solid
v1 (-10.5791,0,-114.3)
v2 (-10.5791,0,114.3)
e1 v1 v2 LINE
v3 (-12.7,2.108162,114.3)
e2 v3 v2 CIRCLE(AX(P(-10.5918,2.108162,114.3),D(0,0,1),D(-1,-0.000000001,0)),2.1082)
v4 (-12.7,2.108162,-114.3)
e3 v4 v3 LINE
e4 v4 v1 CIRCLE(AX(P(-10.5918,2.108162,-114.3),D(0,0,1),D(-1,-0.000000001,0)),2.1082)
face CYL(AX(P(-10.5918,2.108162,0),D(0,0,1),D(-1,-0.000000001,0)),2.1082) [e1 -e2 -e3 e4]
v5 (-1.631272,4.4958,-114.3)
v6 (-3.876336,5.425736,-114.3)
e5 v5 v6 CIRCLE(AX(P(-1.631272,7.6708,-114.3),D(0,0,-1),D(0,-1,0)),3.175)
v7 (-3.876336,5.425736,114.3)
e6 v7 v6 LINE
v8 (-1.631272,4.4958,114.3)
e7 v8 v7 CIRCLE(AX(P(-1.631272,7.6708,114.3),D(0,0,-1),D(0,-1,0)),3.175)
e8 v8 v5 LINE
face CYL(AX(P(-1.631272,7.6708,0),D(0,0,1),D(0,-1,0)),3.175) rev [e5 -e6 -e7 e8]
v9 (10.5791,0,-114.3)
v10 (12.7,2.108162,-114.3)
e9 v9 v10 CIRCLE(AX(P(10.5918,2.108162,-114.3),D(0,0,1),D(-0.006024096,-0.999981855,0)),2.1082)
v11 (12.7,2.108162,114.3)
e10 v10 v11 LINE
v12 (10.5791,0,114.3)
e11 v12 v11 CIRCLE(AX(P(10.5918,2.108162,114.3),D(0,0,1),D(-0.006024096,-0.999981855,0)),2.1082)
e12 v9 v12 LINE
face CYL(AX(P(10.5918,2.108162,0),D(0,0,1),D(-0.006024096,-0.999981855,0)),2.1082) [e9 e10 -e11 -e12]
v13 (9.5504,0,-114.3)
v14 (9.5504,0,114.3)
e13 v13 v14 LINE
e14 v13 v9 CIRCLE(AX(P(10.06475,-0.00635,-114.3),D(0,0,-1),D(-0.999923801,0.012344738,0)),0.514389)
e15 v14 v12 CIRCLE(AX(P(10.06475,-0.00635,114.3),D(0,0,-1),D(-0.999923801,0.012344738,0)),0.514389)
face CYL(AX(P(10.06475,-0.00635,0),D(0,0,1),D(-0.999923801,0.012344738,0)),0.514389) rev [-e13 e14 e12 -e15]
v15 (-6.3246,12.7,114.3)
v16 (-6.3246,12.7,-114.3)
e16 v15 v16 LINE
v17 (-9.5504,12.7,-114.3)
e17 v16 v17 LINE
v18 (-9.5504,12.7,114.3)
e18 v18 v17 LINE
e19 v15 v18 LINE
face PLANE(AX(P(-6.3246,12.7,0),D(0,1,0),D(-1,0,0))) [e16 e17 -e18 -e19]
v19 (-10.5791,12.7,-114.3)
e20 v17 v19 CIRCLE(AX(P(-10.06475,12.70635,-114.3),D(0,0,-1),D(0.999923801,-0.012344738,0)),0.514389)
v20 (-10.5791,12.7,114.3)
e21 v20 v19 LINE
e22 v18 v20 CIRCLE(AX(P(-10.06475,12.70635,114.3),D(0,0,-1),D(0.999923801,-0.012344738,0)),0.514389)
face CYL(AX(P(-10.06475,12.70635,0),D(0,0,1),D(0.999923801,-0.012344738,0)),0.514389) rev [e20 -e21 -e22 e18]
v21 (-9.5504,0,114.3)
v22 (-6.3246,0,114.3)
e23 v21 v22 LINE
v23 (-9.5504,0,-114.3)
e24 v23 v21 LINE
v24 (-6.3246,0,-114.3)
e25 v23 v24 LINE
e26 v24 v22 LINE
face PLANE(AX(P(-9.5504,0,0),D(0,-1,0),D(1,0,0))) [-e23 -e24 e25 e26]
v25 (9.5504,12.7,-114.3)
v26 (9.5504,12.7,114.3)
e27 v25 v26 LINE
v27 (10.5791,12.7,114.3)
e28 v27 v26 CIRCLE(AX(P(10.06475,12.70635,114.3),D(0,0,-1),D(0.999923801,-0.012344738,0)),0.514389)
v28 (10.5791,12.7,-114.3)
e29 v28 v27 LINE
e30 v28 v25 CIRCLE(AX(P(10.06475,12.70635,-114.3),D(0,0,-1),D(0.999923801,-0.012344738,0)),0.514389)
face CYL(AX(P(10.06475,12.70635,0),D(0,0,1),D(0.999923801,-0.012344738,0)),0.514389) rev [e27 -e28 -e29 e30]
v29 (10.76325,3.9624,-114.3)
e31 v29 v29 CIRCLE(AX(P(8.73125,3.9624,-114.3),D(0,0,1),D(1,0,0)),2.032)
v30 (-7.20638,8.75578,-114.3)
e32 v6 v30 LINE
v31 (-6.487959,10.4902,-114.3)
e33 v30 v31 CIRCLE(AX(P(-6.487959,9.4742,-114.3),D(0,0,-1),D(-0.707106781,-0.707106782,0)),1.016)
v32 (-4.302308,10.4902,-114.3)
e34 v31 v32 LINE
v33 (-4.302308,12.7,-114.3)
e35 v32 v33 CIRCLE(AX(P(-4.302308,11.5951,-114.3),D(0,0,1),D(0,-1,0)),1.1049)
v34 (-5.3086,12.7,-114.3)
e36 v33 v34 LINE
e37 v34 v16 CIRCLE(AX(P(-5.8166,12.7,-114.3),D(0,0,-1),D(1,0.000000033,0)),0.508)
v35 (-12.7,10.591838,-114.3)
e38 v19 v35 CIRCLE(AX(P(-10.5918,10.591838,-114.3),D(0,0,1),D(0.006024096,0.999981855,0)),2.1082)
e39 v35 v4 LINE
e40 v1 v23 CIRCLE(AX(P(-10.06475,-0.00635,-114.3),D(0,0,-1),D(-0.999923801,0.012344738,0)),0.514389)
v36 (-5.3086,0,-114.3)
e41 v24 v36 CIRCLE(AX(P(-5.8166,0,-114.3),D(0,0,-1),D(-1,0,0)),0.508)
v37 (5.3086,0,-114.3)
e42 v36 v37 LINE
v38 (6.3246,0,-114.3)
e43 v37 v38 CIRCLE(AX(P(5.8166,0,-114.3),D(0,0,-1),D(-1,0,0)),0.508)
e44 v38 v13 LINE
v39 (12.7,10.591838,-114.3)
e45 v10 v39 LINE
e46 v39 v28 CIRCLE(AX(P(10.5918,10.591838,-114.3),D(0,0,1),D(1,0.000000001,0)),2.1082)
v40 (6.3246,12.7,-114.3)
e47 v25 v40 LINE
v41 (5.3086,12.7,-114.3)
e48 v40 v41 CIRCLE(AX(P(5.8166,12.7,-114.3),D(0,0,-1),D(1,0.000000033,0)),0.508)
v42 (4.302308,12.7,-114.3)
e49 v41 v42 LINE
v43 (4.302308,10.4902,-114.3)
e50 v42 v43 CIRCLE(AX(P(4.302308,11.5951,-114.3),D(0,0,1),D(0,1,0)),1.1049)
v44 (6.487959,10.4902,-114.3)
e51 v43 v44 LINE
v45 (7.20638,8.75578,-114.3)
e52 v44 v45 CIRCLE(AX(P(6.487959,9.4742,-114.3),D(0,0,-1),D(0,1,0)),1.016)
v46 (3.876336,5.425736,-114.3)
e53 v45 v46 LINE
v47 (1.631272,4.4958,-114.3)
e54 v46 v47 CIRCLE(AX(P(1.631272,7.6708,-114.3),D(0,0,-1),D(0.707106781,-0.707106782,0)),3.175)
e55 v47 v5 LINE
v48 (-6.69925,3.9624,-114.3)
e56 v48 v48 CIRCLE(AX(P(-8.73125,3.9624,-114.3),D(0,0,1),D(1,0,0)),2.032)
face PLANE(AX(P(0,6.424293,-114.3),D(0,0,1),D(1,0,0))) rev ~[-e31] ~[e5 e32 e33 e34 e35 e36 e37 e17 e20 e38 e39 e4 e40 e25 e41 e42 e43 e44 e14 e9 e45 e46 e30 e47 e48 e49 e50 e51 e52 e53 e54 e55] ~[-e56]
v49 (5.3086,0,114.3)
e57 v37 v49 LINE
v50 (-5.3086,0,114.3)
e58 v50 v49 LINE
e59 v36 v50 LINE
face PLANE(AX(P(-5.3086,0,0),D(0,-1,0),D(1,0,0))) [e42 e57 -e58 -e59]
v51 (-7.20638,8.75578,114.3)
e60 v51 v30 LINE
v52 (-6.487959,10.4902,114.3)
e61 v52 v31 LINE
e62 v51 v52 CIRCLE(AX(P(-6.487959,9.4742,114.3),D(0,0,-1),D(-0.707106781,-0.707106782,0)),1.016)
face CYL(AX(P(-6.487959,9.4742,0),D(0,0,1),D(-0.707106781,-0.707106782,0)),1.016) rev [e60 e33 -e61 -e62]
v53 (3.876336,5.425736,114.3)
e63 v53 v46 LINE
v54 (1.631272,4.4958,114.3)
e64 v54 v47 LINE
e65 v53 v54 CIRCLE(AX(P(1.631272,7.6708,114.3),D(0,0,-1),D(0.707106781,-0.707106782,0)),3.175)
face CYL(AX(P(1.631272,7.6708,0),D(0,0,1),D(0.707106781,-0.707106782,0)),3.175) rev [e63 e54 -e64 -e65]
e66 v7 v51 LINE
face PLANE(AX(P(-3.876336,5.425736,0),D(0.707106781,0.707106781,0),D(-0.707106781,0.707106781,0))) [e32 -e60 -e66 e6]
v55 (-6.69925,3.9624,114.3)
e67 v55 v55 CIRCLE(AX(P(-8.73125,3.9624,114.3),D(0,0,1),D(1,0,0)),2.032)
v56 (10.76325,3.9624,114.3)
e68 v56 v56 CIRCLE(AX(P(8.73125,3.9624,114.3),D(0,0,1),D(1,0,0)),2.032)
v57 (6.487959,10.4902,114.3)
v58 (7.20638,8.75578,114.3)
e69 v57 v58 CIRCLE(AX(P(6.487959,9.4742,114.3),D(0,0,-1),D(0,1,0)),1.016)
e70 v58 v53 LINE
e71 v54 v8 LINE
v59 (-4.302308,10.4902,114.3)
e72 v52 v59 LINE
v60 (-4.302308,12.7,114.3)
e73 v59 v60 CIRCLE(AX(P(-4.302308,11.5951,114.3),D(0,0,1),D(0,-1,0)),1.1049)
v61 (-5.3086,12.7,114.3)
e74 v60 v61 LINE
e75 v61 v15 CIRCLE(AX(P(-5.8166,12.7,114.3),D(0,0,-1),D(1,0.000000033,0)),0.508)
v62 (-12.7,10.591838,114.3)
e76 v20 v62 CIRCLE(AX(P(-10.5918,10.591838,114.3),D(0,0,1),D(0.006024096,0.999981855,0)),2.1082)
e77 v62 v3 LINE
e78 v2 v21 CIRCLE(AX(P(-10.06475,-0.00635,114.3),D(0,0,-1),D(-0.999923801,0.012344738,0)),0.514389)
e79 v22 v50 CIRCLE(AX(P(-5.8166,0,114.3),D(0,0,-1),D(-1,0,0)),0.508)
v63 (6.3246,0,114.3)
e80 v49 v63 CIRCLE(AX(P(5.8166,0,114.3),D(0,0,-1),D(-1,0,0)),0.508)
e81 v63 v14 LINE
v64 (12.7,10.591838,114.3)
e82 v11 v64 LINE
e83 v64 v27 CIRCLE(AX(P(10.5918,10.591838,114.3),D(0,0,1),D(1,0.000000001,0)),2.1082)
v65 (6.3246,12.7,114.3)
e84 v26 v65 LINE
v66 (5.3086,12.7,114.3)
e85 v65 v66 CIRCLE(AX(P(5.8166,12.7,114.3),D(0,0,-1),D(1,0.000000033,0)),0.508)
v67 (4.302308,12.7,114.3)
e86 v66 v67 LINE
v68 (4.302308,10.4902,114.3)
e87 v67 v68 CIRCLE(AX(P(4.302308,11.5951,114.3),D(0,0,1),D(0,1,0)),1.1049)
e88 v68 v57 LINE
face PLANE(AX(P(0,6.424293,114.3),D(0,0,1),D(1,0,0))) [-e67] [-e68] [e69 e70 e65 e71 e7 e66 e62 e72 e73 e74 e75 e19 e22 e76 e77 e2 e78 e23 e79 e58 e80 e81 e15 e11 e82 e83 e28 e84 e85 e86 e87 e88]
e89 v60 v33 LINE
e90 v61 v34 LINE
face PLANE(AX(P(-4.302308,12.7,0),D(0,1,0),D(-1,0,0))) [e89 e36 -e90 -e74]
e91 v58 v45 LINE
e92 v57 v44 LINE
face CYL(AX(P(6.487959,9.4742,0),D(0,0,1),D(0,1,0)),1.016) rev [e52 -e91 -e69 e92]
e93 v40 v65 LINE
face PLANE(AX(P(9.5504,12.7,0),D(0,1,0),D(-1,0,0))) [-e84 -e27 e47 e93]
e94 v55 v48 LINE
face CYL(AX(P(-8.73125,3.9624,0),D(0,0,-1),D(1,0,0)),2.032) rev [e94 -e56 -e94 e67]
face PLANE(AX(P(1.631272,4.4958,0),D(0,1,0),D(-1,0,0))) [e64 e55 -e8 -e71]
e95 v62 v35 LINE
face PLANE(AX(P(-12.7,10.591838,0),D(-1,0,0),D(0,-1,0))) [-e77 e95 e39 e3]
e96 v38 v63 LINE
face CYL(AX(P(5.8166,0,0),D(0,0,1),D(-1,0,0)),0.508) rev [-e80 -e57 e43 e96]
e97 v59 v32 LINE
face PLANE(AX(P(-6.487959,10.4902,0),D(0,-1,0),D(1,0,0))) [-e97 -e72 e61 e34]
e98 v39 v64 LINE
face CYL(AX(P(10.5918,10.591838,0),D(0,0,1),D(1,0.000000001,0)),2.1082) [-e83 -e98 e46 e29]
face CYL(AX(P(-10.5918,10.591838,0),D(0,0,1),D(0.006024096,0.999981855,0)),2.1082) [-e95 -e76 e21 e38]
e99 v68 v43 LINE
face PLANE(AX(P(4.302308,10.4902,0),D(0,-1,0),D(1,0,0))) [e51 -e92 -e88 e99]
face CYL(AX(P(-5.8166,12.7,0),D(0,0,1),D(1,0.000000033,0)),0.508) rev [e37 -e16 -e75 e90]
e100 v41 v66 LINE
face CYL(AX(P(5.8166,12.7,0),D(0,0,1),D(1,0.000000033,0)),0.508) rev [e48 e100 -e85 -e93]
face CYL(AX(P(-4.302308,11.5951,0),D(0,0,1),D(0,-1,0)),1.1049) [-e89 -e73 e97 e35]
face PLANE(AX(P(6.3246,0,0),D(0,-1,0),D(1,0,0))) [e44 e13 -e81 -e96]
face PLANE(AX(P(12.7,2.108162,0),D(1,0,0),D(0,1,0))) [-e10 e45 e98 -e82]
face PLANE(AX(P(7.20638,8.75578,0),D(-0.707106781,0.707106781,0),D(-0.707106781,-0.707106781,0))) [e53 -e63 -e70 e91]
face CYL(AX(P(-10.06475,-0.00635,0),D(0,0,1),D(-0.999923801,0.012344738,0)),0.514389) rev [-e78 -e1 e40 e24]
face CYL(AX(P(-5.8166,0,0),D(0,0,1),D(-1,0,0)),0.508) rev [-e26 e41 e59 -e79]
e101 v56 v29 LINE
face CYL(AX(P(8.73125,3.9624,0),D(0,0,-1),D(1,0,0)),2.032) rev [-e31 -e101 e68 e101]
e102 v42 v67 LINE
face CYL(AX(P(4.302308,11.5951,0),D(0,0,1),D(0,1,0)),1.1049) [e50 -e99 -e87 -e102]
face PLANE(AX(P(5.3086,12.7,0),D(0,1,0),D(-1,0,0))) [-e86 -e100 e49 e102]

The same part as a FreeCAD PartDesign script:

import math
import FreeCAD as App
import Part
import Sketcher

V = App.Vector
Q = App.Units.Quantity

doc = App.newDocument("Part")
params = doc.addObject("Spreadsheet::Sheet", "Params")
for row, (alias, value) in enumerate([
    ("sketch1_diameter", "0.16 in"),
    ("sketch1_radius", "0.02 in"),
    ("sketch1_radius2", "0.04 in"),
    ("sketch1_radius3", "0.083 in"),
    ("sketch1_radius4", "0.125 in"),
    ("pad1_length", "9 in"),
], start=1):
    params.set(f"A{row}", alias)
    params.set(f"B{row}", "=" + value)
    params.setAlias(f"B{row}", alias)

body = doc.addObject("PartDesign::Body", "Body")

# Sketch on XY plane
sketch1 = doc.addObject("Sketcher::SketchObject", "Sketch")
body.addObject(sketch1)
sketch1.AttachmentSupport = (doc.XY_Plane, [""])
sketch1.MapMode = "FlatFace"
sketch1.addGeometry(Part.LineSegment(V(-12.7, 10.6, 0), V(-12.7, 2.1, 0)), False)
sketch1.addGeometry(Part.ArcOfCircle(Part.Circle(V(-10.6, 2.1, 0), V(0, 0, 1), 2.1), math.radians(-180), math.radians(-90)), False)
sketch1.addGeometry(Part.ArcOfCircle(Part.Circle(V(-10.1, 0, 0), V(0, 0, 1), 0.5), math.radians(1), math.radians(179)), False)
sketch1.addGeometry(Part.LineSegment(V(-9.6, 0, 0), V(-6.3, 0, 0)), False)
sketch1.addGeometry(Part.ArcOfCircle(Part.Circle(V(-5.8, 0, 0), V(0, 0, 1), 0.5), math.radians(0), math.radians(180)), False)
sketch1.addGeometry(Part.LineSegment(V(-5.3, 0, 0), V(5.3, 0, 0)), False)
sketch1.addGeometry(Part.ArcOfCircle(Part.Circle(V(5.8, 0, 0), V(0, 0, 1), 0.5), math.radians(0), math.radians(180)), False)
sketch1.addGeometry(Part.LineSegment(V(6.3, 0, 0), V(9.6, 0, 0)), False)
sketch1.addGeometry(Part.ArcOfCircle(Part.Circle(V(10.1, 0, 0), V(0, 0, 1), 0.5), math.radians(1), math.radians(179)), False)
sketch1.addGeometry(Part.ArcOfCircle(Part.Circle(V(10.6, 2.1, 0), V(0, 0, 1), 2.1), math.radians(-90), math.radians(0)), False)
sketch1.addGeometry(Part.LineSegment(V(12.7, 2.1, 0), V(12.7, 10.6, 0)), False)
sketch1.addGeometry(Part.ArcOfCircle(Part.Circle(V(10.6, 10.6, 0), V(0, 0, 1), 2.1), math.radians(0), math.radians(90)), False)
sketch1.addGeometry(Part.ArcOfCircle(Part.Circle(V(10.1, 12.7, 0), V(0, 0, 1), 0.5), math.radians(-179), math.radians(-1)), False)
sketch1.addGeometry(Part.LineSegment(V(9.6, 12.7, 0), V(6.3, 12.7, 0)), False)
sketch1.addGeometry(Part.ArcOfCircle(Part.Circle(V(5.8, 12.7, 0), V(0, 0, 1), 0.5), math.radians(180), math.radians(360)), False)
sketch1.addGeometry(Part.LineSegment(V(5.3, 12.7, 0), V(4.3, 12.7, 0)), False)
sketch1.addGeometry(Part.ArcOfCircle(Part.Circle(V(4.3, 11.6, 0), V(0, 0, 1), 1.1), math.radians(90), math.radians(270)), False)
sketch1.addGeometry(Part.LineSegment(V(4.3, 10.5, 0), V(6.5, 10.5, 0)), False)
sketch1.addGeometry(Part.ArcOfCircle(Part.Circle(V(6.5, 9.5, 0), V(0, 0, 1), 1), math.radians(-45), math.radians(90)), False)
sketch1.addGeometry(Part.LineSegment(V(7.2, 8.8, 0), V(3.9, 5.4, 0)), False)
sketch1.addGeometry(Part.ArcOfCircle(Part.Circle(V(1.6, 7.7, 0), V(0, 0, 1), 3.2), math.radians(-90), math.radians(-45)), False)
sketch1.addGeometry(Part.LineSegment(V(1.6, 4.5, 0), V(-1.6, 4.5, 0)), False)
sketch1.addGeometry(Part.ArcOfCircle(Part.Circle(V(-1.6, 7.7, 0), V(0, 0, 1), 3.2), math.radians(-135), math.radians(-90)), False)
sketch1.addGeometry(Part.LineSegment(V(-3.9, 5.4, 0), V(-7.2, 8.8, 0)), False)
sketch1.addGeometry(Part.ArcOfCircle(Part.Circle(V(-6.5, 9.5, 0), V(0, 0, 1), 1), math.radians(90), math.radians(225)), False)
sketch1.addGeometry(Part.LineSegment(V(-6.5, 10.5, 0), V(-4.3, 10.5, 0)), False)
sketch1.addGeometry(Part.ArcOfCircle(Part.Circle(V(-4.3, 11.6, 0), V(0, 0, 1), 1.1), math.radians(-90), math.radians(90)), False)
sketch1.addGeometry(Part.LineSegment(V(-4.3, 12.7, 0), V(-5.3, 12.7, 0)), False)
sketch1.addGeometry(Part.ArcOfCircle(Part.Circle(V(-5.8, 12.7, 0), V(0, 0, 1), 0.5), math.radians(180), math.radians(360)), False)
sketch1.addGeometry(Part.LineSegment(V(-6.3, 12.7, 0), V(-9.6, 12.7, 0)), False)
sketch1.addGeometry(Part.ArcOfCircle(Part.Circle(V(-10.1, 12.7, 0), V(0, 0, 1), 0.5), math.radians(-179), math.radians(-1)), False)
sketch1.addGeometry(Part.ArcOfCircle(Part.Circle(V(-10.6, 10.6, 0), V(0, 0, 1), 2.1), math.radians(90), math.radians(180)), False)
sketch1.addGeometry(Part.Circle(V(-8.7, 4, 0), V(0, 0, 1), 2), False)
sketch1.addGeometry(Part.Circle(V(8.7, 4, 0), V(0, 0, 1), 2), False)
sketch1.addConstraint(Sketcher.Constraint("Tangent", 0, 2, 1, 1))
sketch1.addConstraint(Sketcher.Constraint("Coincident", 1, 2, 2, 2))
sketch1.addConstraint(Sketcher.Constraint("Coincident", 2, 1, 3, 1))
sketch1.addConstraint(Sketcher.Constraint("Coincident", 3, 2, 4, 2))
sketch1.addConstraint(Sketcher.Constraint("Coincident", 4, 1, 5, 1))
sketch1.addConstraint(Sketcher.Constraint("Coincident", 5, 2, 6, 2))
sketch1.addConstraint(Sketcher.Constraint("Coincident", 6, 1, 7, 1))
sketch1.addConstraint(Sketcher.Constraint("Coincident", 7, 2, 8, 2))
sketch1.addConstraint(Sketcher.Constraint("Coincident", 8, 1, 9, 1))
sketch1.addConstraint(Sketcher.Constraint("Tangent", 9, 2, 10, 1))
sketch1.addConstraint(Sketcher.Constraint("Tangent", 10, 2, 11, 1))
sketch1.addConstraint(Sketcher.Constraint("Coincident", 11, 2, 12, 2))
sketch1.addConstraint(Sketcher.Constraint("Coincident", 12, 1, 13, 1))
sketch1.addConstraint(Sketcher.Constraint("Coincident", 13, 2, 14, 2))
sketch1.addConstraint(Sketcher.Constraint("Coincident", 14, 1, 15, 1))
sketch1.addConstraint(Sketcher.Constraint("Tangent", 15, 2, 16, 1))
sketch1.addConstraint(Sketcher.Constraint("Tangent", 16, 2, 17, 1))
sketch1.addConstraint(Sketcher.Constraint("Tangent", 17, 2, 18, 2))
sketch1.addConstraint(Sketcher.Constraint("Tangent", 18, 1, 19, 1))
sketch1.addConstraint(Sketcher.Constraint("Tangent", 19, 2, 20, 2))
sketch1.addConstraint(Sketcher.Constraint("Tangent", 20, 1, 21, 1))
sketch1.addConstraint(Sketcher.Constraint("Tangent", 21, 2, 22, 2))
sketch1.addConstraint(Sketcher.Constraint("Tangent", 22, 1, 23, 1))
sketch1.addConstraint(Sketcher.Constraint("Tangent", 23, 2, 24, 2))
sketch1.addConstraint(Sketcher.Constraint("Tangent", 24, 1, 25, 1))
sketch1.addConstraint(Sketcher.Constraint("Tangent", 25, 2, 26, 1))
sketch1.addConstraint(Sketcher.Constraint("Tangent", 26, 2, 27, 1))
sketch1.addConstraint(Sketcher.Constraint("Coincident", 27, 2, 28, 2))
sketch1.addConstraint(Sketcher.Constraint("Coincident", 28, 1, 29, 1))
sketch1.addConstraint(Sketcher.Constraint("Coincident", 29, 2, 30, 2))
sketch1.addConstraint(Sketcher.Constraint("Coincident", 30, 1, 31, 1))
sketch1.addConstraint(Sketcher.Constraint("Tangent", 31, 2, 0, 1))
sketch1.addConstraint(Sketcher.Constraint("Vertical", 0))
sketch1.addConstraint(Sketcher.Constraint("Horizontal", 3))
sketch1.addConstraint(Sketcher.Constraint("Horizontal", 5))
sketch1.addConstraint(Sketcher.Constraint("Horizontal", 7))
sketch1.addConstraint(Sketcher.Constraint("Vertical", 10))
sketch1.addConstraint(Sketcher.Constraint("Horizontal", 13))
sketch1.addConstraint(Sketcher.Constraint("Horizontal", 15))
sketch1.addConstraint(Sketcher.Constraint("Horizontal", 17))
sketch1.addConstraint(Sketcher.Constraint("Horizontal", 21))
sketch1.addConstraint(Sketcher.Constraint("Horizontal", 25))
sketch1.addConstraint(Sketcher.Constraint("Horizontal", 27))
sketch1.addConstraint(Sketcher.Constraint("Horizontal", 29))
sketch1.addConstraint(Sketcher.Constraint("Equal", 4, 6))
sketch1.addConstraint(Sketcher.Constraint("Equal", 2, 8))
sketch1.addConstraint(Sketcher.Constraint("Equal", 1, 9))
sketch1.addConstraint(Sketcher.Constraint("Equal", 9, 11))
sketch1.addConstraint(Sketcher.Constraint("Equal", 8, 12))
sketch1.addConstraint(Sketcher.Constraint("Equal", 6, 14))
sketch1.addConstraint(Sketcher.Constraint("Equal", 20, 22))
sketch1.addConstraint(Sketcher.Constraint("Equal", 18, 24))
sketch1.addConstraint(Sketcher.Constraint("Equal", 16, 26))
sketch1.addConstraint(Sketcher.Constraint("Equal", 14, 28))
sketch1.addConstraint(Sketcher.Constraint("Equal", 12, 30))
sketch1.addConstraint(Sketcher.Constraint("Equal", 11, 31))
sketch1.addConstraint(Sketcher.Constraint("Equal", 32, 33))
sketch1.addConstraint(Sketcher.Constraint("Symmetric", 4, 3, 6, 3, -1, 1))
sketch1.addConstraint(Sketcher.Constraint("Symmetric", 2, 1, 7, 2, -1, 1))
sketch1.addConstraint(Sketcher.Constraint("Symmetric", 1, 2, 8, 1, -1, 1))
sketch1.addConstraint(Sketcher.Constraint("Symmetric", 2, 3, 8, 3, -2))
sketch1.addConstraint(Sketcher.Constraint("Symmetric", 18, 3, 24, 3, -2))
sketch1.addConstraint(Sketcher.Constraint("Symmetric", 14, 3, 28, 3, -2))
sketch1.addConstraint(Sketcher.Constraint("Symmetric", 12, 3, 30, 3, -2))
sketch1.addConstraint(Sketcher.Constraint("Symmetric", 11, 3, 31, 3, -2))
sketch1.addConstraint(Sketcher.Constraint("Symmetric", 32, 3, 33, 3, -2))
sketch1.addConstraint(Sketcher.Constraint("PointOnObject", 4, 3, -1))
sketch1.addConstraint(Sketcher.Constraint("PointOnObject", 4, 1, -1))
sketch1.addConstraint(Sketcher.Constraint("Perpendicular", 19, 23))
sketch1.addConstraint(Sketcher.Constraint("Horizontal", 28, 3, 11, 2))
sketch1.addConstraint(Sketcher.Constraint("Horizontal", 11, 2, 12, 1))
sketch1.addConstraint(Sketcher.Constraint("Horizontal", 13, 2, 14, 1))
sketch1.addConstraint(Sketcher.Constraint("Horizontal", 19, 2, 22, 1))
sketch1.addConstraint(Sketcher.Constraint("Horizontal", 27, 2, 28, 1))
sketch1.addConstraint(Sketcher.Constraint("Vertical", 8, 3, 12, 3))
sketch1.addConstraint(Sketcher.Constraint("Vertical", 6, 3, 14, 3))
sketch1.addConstraint(Sketcher.Constraint("Vertical", 7, 2, 12, 1))
sketch1.addConstraint(Sketcher.Constraint("Equal", 17, 25))
sketch1.addConstraint(Sketcher.Constraint("Diameter", 32, Q("0.16 in")))
sketch1.addConstraint(Sketcher.Constraint("Radius", 4, Q("0.02 in")))
sketch1.addConstraint(Sketcher.Constraint("Radius", 18, Q("0.04 in")))
sketch1.addConstraint(Sketcher.Constraint("Radius", 1, Q("0.083 in")))
sketch1.addConstraint(Sketcher.Constraint("Radius", 20, Q("0.125 in")))
sketch1.addConstraint(Sketcher.Constraint("DistanceY", -1, 1, 14, 3, Q("0.5 in")))
sketch1.addConstraint(Sketcher.Constraint("DistanceX", 0, 2, -1, 1, Q("0.5 in")))
sketch1.addConstraint(Sketcher.Constraint("Radius", 16, Q("0.0435 in")))
sketch1.addConstraint(Sketcher.Constraint("DistanceX", 3, 1, 3, 2, Q("0.127 in")))
sketch1.addConstraint(Sketcher.Constraint("DistanceX", 5, 1, 5, 2, Q("0.418 in")))
sketch1.addConstraint(Sketcher.Constraint("DistanceY", -1, 1, 20, 3, Q("0.302 in")))
sketch1.addConstraint(Sketcher.Constraint("DistanceX", 32, 3, -1, 1, Q("0.34375 in")))
sketch1.addConstraint(Sketcher.Constraint("DistanceY", -1, 1, 32, 3, Q("0.156 in")))
sketch1.addConstraint(Sketcher.Constraint("Radius", 2, Q("0.514389 mm")))
sketch1.addConstraint(Sketcher.Constraint("DistanceY", 2, 3, 32, 3, Q("0.15625 in")))
sketch1.addConstraint(Sketcher.Constraint("DistanceX", 17, 1, 17, 2, Q("2.185651 mm")))
sketch1.addConstraint(Sketcher.Constraint("DistanceX", 15, 2, 15, 1, Q("1.006292 mm")))
sketch1.setExpression("Constraints[78]", "Params.sketch1_diameter")
sketch1.setExpression("Constraints[79]", "Params.sketch1_radius")
sketch1.setExpression("Constraints[80]", "Params.sketch1_radius2")
sketch1.setExpression("Constraints[81]", "Params.sketch1_radius3")
sketch1.setExpression("Constraints[82]", "Params.sketch1_radius4")
pad1 = doc.addObject("PartDesign::Pad", "Pad")
body.addObject(pad1)
pad1.Profile = sketch1
pad1.setExpression("Length", "Params.pad1_length")
pad1.Midplane = True

doc.recompute()
